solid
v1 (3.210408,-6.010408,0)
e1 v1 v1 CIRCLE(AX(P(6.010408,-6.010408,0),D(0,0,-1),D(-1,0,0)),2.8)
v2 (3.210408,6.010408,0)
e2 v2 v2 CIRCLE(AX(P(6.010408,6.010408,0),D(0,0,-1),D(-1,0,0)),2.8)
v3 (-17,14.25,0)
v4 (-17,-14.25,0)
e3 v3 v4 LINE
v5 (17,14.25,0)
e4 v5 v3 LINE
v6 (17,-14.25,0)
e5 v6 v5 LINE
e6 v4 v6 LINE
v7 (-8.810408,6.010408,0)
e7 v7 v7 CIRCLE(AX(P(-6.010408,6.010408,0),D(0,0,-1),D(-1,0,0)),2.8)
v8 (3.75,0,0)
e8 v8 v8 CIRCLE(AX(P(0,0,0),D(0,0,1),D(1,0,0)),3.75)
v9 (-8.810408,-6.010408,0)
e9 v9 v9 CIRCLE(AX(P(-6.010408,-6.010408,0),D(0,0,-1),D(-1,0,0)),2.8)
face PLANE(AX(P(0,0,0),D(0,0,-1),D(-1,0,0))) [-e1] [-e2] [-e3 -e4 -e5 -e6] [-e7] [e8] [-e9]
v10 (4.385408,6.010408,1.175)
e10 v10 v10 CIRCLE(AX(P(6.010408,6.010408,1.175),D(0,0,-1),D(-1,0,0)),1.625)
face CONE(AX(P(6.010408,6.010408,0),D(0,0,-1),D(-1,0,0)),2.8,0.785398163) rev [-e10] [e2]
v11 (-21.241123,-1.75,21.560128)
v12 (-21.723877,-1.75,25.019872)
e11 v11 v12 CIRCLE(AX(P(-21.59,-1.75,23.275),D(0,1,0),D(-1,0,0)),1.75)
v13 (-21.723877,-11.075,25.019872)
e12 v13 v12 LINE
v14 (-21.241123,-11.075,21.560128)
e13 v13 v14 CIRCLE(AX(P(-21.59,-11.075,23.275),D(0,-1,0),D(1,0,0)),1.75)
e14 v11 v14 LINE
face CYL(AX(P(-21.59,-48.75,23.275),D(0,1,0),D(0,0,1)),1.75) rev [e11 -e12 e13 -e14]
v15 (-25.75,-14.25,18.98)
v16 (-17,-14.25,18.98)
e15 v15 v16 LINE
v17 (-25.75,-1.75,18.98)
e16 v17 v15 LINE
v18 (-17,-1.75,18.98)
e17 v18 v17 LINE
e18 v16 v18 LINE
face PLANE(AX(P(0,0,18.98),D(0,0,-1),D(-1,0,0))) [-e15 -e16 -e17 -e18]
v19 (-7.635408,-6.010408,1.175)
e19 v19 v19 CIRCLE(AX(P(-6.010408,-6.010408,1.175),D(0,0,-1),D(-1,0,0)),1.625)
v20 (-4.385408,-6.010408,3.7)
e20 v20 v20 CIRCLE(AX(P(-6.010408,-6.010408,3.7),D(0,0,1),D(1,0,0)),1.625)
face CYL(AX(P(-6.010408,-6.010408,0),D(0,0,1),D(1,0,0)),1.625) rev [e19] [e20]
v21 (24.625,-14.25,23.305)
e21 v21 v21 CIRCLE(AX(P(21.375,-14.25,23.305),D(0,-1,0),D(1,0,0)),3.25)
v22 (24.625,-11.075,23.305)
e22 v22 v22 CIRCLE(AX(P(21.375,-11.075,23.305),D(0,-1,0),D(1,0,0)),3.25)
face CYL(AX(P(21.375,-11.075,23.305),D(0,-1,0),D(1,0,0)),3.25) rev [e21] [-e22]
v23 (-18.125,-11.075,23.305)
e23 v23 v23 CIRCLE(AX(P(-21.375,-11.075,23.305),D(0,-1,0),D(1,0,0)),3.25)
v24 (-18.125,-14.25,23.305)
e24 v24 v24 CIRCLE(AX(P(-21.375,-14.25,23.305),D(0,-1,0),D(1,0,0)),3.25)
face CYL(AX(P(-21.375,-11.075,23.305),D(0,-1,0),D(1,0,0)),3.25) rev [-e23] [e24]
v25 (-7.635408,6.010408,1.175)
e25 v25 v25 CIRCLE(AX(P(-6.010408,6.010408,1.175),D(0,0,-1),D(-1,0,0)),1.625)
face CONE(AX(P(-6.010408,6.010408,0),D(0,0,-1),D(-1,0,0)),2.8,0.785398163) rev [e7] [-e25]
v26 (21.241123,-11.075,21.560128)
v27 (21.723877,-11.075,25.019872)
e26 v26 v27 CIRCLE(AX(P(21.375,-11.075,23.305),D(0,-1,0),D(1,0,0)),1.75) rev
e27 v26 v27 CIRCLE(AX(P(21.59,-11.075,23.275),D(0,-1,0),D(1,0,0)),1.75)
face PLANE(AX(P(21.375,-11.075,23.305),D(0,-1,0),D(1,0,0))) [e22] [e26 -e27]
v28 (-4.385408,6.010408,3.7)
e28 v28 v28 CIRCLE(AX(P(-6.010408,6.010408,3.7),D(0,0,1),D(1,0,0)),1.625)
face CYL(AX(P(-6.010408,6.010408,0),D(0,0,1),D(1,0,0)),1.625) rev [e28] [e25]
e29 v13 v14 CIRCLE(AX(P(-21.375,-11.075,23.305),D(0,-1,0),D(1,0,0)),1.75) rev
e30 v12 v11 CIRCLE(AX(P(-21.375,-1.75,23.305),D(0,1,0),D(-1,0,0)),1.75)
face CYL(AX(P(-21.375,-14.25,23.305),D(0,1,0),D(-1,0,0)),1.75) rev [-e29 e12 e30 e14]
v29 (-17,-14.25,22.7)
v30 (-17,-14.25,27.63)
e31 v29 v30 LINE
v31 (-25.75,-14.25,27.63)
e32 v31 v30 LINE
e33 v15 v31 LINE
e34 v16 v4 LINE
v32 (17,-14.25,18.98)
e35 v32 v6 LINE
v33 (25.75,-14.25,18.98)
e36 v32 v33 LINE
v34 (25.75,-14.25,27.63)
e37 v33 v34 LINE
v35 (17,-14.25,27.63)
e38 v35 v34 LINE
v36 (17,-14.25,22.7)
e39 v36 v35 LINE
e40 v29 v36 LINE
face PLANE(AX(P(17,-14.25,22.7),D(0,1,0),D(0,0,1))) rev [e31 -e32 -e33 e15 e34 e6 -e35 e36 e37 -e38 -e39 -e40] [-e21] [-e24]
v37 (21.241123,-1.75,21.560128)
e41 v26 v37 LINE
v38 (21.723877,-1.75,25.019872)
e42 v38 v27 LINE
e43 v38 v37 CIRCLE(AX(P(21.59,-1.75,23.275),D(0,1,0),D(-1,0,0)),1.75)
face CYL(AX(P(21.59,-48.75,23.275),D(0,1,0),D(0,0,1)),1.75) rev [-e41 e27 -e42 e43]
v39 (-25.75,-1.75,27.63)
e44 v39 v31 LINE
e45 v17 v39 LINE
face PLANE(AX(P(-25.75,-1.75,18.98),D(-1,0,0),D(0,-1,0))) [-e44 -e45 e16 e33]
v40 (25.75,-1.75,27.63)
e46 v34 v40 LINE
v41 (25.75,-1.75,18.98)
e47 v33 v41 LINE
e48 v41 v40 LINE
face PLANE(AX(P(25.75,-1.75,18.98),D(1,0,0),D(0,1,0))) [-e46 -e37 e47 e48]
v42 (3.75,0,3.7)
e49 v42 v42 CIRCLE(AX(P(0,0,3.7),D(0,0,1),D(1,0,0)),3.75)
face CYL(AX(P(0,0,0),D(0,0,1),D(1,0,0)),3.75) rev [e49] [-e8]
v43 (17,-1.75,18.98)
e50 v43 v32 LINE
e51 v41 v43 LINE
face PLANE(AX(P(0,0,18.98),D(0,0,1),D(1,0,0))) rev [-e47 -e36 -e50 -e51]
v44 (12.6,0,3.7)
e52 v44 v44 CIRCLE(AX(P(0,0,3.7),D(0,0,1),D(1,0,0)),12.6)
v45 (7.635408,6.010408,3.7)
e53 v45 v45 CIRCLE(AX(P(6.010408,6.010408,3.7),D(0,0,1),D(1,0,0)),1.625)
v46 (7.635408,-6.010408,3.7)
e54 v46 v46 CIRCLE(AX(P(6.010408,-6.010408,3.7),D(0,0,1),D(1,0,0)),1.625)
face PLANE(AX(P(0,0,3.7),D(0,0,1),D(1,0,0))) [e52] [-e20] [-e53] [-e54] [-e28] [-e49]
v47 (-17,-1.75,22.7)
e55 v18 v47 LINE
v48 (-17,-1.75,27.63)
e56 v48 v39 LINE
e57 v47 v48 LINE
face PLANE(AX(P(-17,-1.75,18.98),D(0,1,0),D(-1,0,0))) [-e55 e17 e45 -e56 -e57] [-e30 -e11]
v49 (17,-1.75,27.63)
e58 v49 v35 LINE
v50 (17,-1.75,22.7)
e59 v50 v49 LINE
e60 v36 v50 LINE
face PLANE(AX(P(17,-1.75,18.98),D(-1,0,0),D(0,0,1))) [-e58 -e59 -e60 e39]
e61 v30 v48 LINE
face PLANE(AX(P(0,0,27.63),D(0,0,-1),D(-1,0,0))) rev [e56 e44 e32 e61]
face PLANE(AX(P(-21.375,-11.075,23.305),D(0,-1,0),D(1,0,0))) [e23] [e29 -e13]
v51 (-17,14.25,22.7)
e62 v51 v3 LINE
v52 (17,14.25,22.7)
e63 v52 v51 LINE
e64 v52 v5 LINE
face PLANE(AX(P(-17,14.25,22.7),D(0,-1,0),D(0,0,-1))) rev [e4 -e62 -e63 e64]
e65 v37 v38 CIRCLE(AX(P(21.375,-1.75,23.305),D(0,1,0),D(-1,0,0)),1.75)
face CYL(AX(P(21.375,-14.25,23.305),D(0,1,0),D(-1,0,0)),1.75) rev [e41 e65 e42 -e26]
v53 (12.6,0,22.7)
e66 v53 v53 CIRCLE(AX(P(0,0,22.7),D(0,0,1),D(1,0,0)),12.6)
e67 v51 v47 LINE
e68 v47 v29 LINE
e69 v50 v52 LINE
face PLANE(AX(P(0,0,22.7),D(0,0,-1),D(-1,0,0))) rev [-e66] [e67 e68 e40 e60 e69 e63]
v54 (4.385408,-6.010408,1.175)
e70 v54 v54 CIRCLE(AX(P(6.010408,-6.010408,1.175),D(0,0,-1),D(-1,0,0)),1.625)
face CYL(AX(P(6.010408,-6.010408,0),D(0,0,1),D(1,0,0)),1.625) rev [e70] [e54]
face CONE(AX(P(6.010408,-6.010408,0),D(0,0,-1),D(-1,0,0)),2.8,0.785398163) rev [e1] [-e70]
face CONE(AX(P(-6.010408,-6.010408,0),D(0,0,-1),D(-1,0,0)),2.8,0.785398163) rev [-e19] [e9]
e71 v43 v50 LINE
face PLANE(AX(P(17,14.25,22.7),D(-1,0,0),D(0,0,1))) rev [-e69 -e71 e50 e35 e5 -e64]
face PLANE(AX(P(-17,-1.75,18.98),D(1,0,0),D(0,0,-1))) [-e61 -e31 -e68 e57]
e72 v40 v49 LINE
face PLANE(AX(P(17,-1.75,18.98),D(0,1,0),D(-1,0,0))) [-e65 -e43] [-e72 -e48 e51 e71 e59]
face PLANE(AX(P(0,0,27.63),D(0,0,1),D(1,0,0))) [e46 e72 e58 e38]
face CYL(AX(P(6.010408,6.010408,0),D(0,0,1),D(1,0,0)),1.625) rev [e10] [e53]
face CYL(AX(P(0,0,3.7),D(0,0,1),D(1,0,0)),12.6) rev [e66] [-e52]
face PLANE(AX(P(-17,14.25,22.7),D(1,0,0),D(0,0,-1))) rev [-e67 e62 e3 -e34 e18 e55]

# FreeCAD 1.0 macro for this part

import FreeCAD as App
import Part
import Sketcher

V = App.Vector
Q = App.Units.Quantity

doc = App.newDocument("Part")
body = doc.addObject("PartDesign::Body", "Body")

sketch1 = body.newObject("Sketcher::SketchObject", "Sketch")
sketch1.AttachmentSupport = (doc.getObject("XY_Plane"), [""])
sketch1.MapMode = "FlatFace"
sketch1.addGeometry([
    Part.LineSegment(V(-17, 14, 0), V(-17, -14, 0)),
    Part.LineSegment(V(-17, -14, 0), V(17, -14, 0)),
    Part.LineSegment(V(17, -14, 0), V(17, 14, 0)),
    Part.LineSegment(V(17, 14, 0), V(-17, 14, 0)),
], False)
sketch1.addConstraint([
    Sketcher.Constraint("Coincident", 0, 2, 1, 1),
    Sketcher.Constraint("Coincident", 1, 2, 2, 1),
    Sketcher.Constraint("Coincident", 2, 2, 3, 1),
    Sketcher.Constraint("Coincident", 3, 2, 0, 1),
    Sketcher.Constraint("Vertical", 0),
    Sketcher.Constraint("Horizontal", 1),
    Sketcher.Constraint("Vertical", 2),
    Sketcher.Constraint("Horizontal", 3),
    Sketcher.Constraint("Symmetric", 0, 2, 2, 2, -1, 1),
    Sketcher.Constraint("DistanceX", 1, 1, 1, 2, Q("34 mm")),
    Sketcher.Constraint("DistanceY", 0, 2, 0, 1, Q("28.5 mm")),
])
pad1 = body.newObject("PartDesign::Pad", "Pad")
pad1.Profile = sketch1
pad1.Length = 22.7

sketch2 = body.newObject("Sketcher::SketchObject", "Sketch001")
sketch2.AttachmentSupport = (doc.getObject("XY_Plane"), [""])
sketch2.MapMode = "FlatFace"
sketch2.AttachmentOffset = App.Placement(V(0, 0, 22.7), App.Rotation())
sketch2.addGeometry(Part.Circle(V(0, 0, 0), V(0, 0, 1), 13), False)
sketch2.addConstraint([
    Sketcher.Constraint("Coincident", 0, 3, -1, 1),
    Sketcher.Constraint("Diameter", 0, Q("25.2 mm")),
])
pocket1 = body.newObject("PartDesign::Pocket", "Pocket")
pocket1.Profile = sketch2
pocket1.Length = 19

sketch3 = body.newObject("Sketcher::SketchObject", "Sketch002")
sketch3.AttachmentSupport = (doc.getObject("XY_Plane"), [""])
sketch3.MapMode = "FlatFace"
sketch3.AttachmentOffset = App.Placement(V(0, 0, 3.7), App.Rotation())
sketch3.addGeometry([
    Part.Circle(V(6, 6, 0), V(0, 0, 1), 1.6),
    Part.Circle(V(-6, 6, 0), V(0, 0, 1), 1.6),
    Part.Circle(V(6, -6, 0), V(0, 0, 1), 1.6),
    Part.Circle(V(-6, -6, 0), V(0, 0, 1), 1.6),
    Part.Circle(V(0, 0, 0), V(0, 0, 1), 3.8),
], False)
sketch3.addConstraint([
    Sketcher.Constraint("Coincident", 4, 3, -1, 1),
    Sketcher.Constraint("Equal", 0, 1),
    Sketcher.Constraint("Equal", 1, 2),
    Sketcher.Constraint("Equal", 2, 3),
    Sketcher.Constraint("Symmetric", 1, 3, 2, 3, -1, 1),
    Sketcher.Constraint("Symmetric", 0, 3, 3, 3, -1, 1),
    Sketcher.Constraint("Symmetric", 0, 3, 1, 3, -2),
    Sketcher.Constraint("Diameter", 4, Q("7.5 mm")),
    Sketcher.Constraint("Diameter", 0, Q("3.25 mm")),
    Sketcher.Constraint("DistanceX", -1, 1, 0, 3, Q("6.010408 mm")),
    Sketcher.Constraint("DistanceY", -1, 1, 0, 3, Q("6.010408 mm")),
])
pocket2 = body.newObject("PartDesign::Pocket", "Pocket001")
pocket2.Profile = sketch3
pocket2.Type = "ThroughAll"

sketch4 = body.newObject("Sketcher::SketchObject", "Sketch003")
sketch4.AttachmentSupport = (doc.getObject("XY_Plane"), [""])
sketch4.MapMode = "FlatFace"
sketch4.AttachmentOffset = App.Placement(V(0, 0, 22.7), App.Rotation())
sketch4.addGeometry([
    Part.LineSegment(V(-26, -2, 0), V(-26, -14, 0)),
    Part.LineSegment(V(-26, -14, 0), V(-17, -14, 0)),
    Part.LineSegment(V(-17, -14, 0), V(-17, -2, 0)),
    Part.LineSegment(V(-17, -2, 0), V(-26, -2, 0)),
    Part.LineSegment(V(17, -2, 0), V(17, -14, 0)),
    Part.LineSegment(V(17, -14, 0), V(26, -14, 0)),
    Part.LineSegment(V(26, -14, 0), V(26, -2, 0)),
    Part.LineSegment(V(26, -2, 0), V(17, -2, 0)),
], False)
sketch4.addConstraint([
    Sketcher.Constraint("Coincident", 0, 2, 1, 1),
    Sketcher.Constraint("Coincident", 1, 2, 2, 1),
    Sketcher.Constraint("Coincident", 2, 2, 3, 1),
    Sketcher.Constraint("Coincident", 3, 2, 0, 1),
    Sketcher.Constraint("Coincident", 4, 2, 5, 1),
    Sketcher.Constraint("Coincident", 5, 2, 6, 1),
    Sketcher.Constraint("Coincident", 6, 2, 7, 1),
    Sketcher.Constraint("Coincident", 7, 2, 4, 1),
    Sketcher.Constraint("Vertical", 0),
    Sketcher.Constraint("Horizontal", 1),
    Sketcher.Constraint("Vertical", 2),
    Sketcher.Constraint("Horizontal", 3),
    Sketcher.Constraint("Vertical", 4),
    Sketcher.Constraint("Horizontal", 5),
    Sketcher.Constraint("Vertical", 6),
    Sketcher.Constraint("Horizontal", 7),
    Sketcher.Constraint("Symmetric", 1, 2, 4, 2, -2),
    Sketcher.Constraint("Symmetric", 3, 2, 6, 2, -2),
    Sketcher.Constraint("DistanceY", 0, 2, 0, 1, Q("12.5 mm")),
    Sketcher.Constraint("DistanceX", 1, 2, -1, 1, Q("17 mm")),
    Sketcher.Constraint("DistanceX", 1, 1, 1, 2, Q("8.75 mm")),
    Sketcher.Constraint("DistanceY", 0, 2, -1, 1, Q("14.25 mm")),
])
pad2 = body.newObject("PartDesign::Pad", "Pad001")
pad2.Profile = sketch4
pad2.Type = "TwoLengths"
pad2.Length = 4.93
pad2.Length2 = 3.72

sketch5 = body.newObject("Sketcher::SketchObject", "Sketch004")
sketch5.AttachmentSupport = (doc.getObject("XZ_Plane"), [""])
sketch5.MapMode = "FlatFace"
sketch5.AttachmentOffset = App.Placement(V(0, 0, 1.75), App.Rotation())
sketch5.addGeometry([
    Part.Circle(V(21.4, 23.3, 0), V(0, 0, 1), 1.8),
    Part.Circle(V(-21.4, 23.3, 0), V(0, 0, 1), 1.8),
], False)
sketch5.addConstraint([
    Sketcher.Constraint("Equal", 0, 1),
    Sketcher.Constraint("Symmetric", 0, 3, 1, 3, -2),
    Sketcher.Constraint("Diameter", 0, Q("3.5 mm")),
    Sketcher.Constraint("DistanceX", 1, 3, 0, 3, Q("42.75 mm")),
    Sketcher.Constraint("DistanceY", -1, 1, 0, 3, Q("23.305 mm")),
])
pocket3 = body.newObject("PartDesign::Pocket", "Pocket002")
pocket3.Profile = sketch5
pocket3.Type = "ThroughAll"
pocket3.Reversed = True

sketch6 = body.newObject("Sketcher::SketchObject", "Sketch005")
sketch6.AttachmentSupport = (doc.getObject("XZ_Plane"), [""])
sketch6.MapMode = "FlatFace"
sketch6.AttachmentOffset = App.Placement(V(0, 0, 14.25), App.Rotation())
sketch6.addGeometry([
    Part.Circle(V(-21.4, 23.3, 0), V(0, 0, 1), 3.2),
    Part.Circle(V(21.4, 23.3, 0), V(0, 0, 1), 3.2),
], False)
sketch6.addConstraint([
    Sketcher.Constraint("Equal", 0, 1),
    Sketcher.Constraint("Symmetric", 0, 3, 1, 3, -2),
    Sketcher.Constraint("Diameter", 0, Q("6.5 mm")),
    Sketcher.Constraint("DistanceX", 0, 3, 1, 3, Q("42.75 mm")),
    Sketcher.Constraint("DistanceY", -1, 1, 0, 3, Q("23.305 mm")),
])
pocket4 = body.newObject("PartDesign::Pocket", "Pocket003")
pocket4.Profile = sketch6
pocket4.Length = 3.175

sketch7 = body.newObject("Sketcher::SketchObject", "Sketch006")
sketch7.AttachmentSupport = (doc.getObject("YZ_Plane"), [""])
sketch7.MapMode = "FlatFace"
sketch7.AttachmentOffset = App.Placement(V(0, 0, -6.010408), App.Rotation())
sketch7.addGeometry([
    Part.LineSegment(V(6, 0, 0), V(8.8, 0, 0)),
    Part.LineSegment(V(8.8, 0, 0), V(6, 2.8, 0)),
    Part.LineSegment(V(6, 2.8, 0), V(6, 0, 0)),
], False)
sketch7.addGeometry(Part.LineSegment(V(6, 0, 0), V(6, 2.8, 0)), True)
sketch7.addConstraint([
    Sketcher.Constraint("Coincident", 0, 2, 1, 1),
    Sketcher.Constraint("Coincident", 1, 2, 2, 1),
    Sketcher.Constraint("Coincident", 2, 2, 0, 1),
    Sketcher.Constraint("Horizontal", 0),
    Sketcher.Constraint("Vertical", 2),
    Sketcher.Constraint("Vertical", 3),
    Sketcher.Constraint("Coincident", 3, 1, 2, 2),
    Sketcher.Constraint("PointOnObject", 0, 2, -1),
    Sketcher.Constraint("Equal", 0, 2),
    Sketcher.Constraint("Equal", 2, 3),
    Sketcher.Constraint("DistanceX", 0, 1, 0, 2, Q("2.8 mm")),
    Sketcher.Constraint("DistanceX", -1, 1, 0, 2, Q("8.810408 mm")),
])
groove = body.newObject("PartDesign::Groove", "Groove")
groove.Profile = sketch7
groove.ReferenceAxis = (sketch7, ["Axis0"])
groove.Angle = 360

sketch8 = body.newObject("Sketcher::SketchObject", "Sketch007")
sketch8.AttachmentSupport = (doc.getObject("YZ_Plane"), [""])
sketch8.MapMode = "FlatFace"
sketch8.AttachmentOffset = App.Placement(V(0, 0, -6.010408), App.Rotation())
sketch8.addGeometry([
    Part.LineSegment(V(-6, 0, 0), V(-3.2, 0, 0)),
    Part.LineSegment(V(-3.2, 0, 0), V(-6, 2.8, 0)),
    Part.LineSegment(V(-6, 2.8, 0), V(-6, 0, 0)),
], False)
sketch8.addGeometry(Part.LineSegment(V(-6, 0, 0), V(-6, 2.8, 0)), True)
sketch8.addConstraint([
    Sketcher.Constraint("Coincident", 0, 2, 1, 1),
    Sketcher.Constraint("Coincident", 1, 2, 2, 1),
    Sketcher.Constraint("Coincident", 2, 2, 0, 1),
    Sketcher.Constraint("Horizontal", 0),
    Sketcher.Constraint("Vertical", 2),
    Sketcher.Constraint("Vertical", 3),
    Sketcher.Constraint("Coincident", 3, 1, 2, 2),
    Sketcher.Constraint("PointOnObject", 0, 2, -1),
    Sketcher.Constraint("Equal", 0, 2),
    Sketcher.Constraint("Equal", 2, 3),
    Sketcher.Constraint("DistanceX", 0, 1, 0, 2, Q("2.8 mm")),
    Sketcher.Constraint("DistanceX", 0, 2, -1, 1, Q("3.210408 mm")),
])
groove2 = body.newObject("PartDesign::Groove", "Groove001")
groove2.Profile = sketch8
groove2.ReferenceAxis = (sketch8, ["Axis0"])
groove2.Angle = 360

sketch9 = body.newObject("Sketcher::SketchObject", "Sketch008")
sketch9.AttachmentSupport = (doc.getObject("YZ_Plane"), [""])
sketch9.MapMode = "FlatFace"
sketch9.AttachmentOffset = App.Placement(V(0, 0, 6.010408), App.Rotation())
sketch9.addGeometry([
    Part.LineSegment(V(-6, 0, 0), V(-3.2, 0, 0)),
    Part.LineSegment(V(-3.2, 0, 0), V(-6, 2.8, 0)),
    Part.LineSegment(V(-6, 2.8, 0), V(-6, 0, 0)),
], False)
sketch9.addGeometry(Part.LineSegment(V(-6, 0, 0), V(-6, 2.8, 0)), True)
sketch9.addConstraint([
    Sketcher.Constraint("Coincident", 0, 2, 1, 1),
    Sketcher.Constraint("Coincident", 1, 2, 2, 1),
    Sketcher.Constraint("Coincident", 2, 2, 0, 1),
    Sketcher.Constraint("Horizontal", 0),
    Sketcher.Constraint("Vertical", 2),
    Sketcher.Constraint("Vertical", 3),
    Sketcher.Constraint("Coincident", 3, 1, 2, 2),
    Sketcher.Constraint("PointOnObject", 0, 2, -1),
    Sketcher.Constraint("Equal", 0, 2),
    Sketcher.Constraint("Equal", 2, 3),
    Sketcher.Constraint("DistanceX", 0, 1, 0, 2, Q("2.8 mm")),
    Sketcher.Constraint("DistanceX", 0, 2, -1, 1, Q("3.210408 mm")),
])
groove3 = body.newObject("PartDesign::Groove", "Groove002")
groove3.Profile = sketch9
groove3.ReferenceAxis = (sketch9, ["Axis0"])
groove3.Angle = 360

sketch10 = body.newObject("Sketcher::SketchObject", "Sketch009")
sketch10.AttachmentSupport = (doc.getObject("YZ_Plane"), [""])
sketch10.MapMode = "FlatFace"
sketch10.AttachmentOffset = App.Placement(V(0, 0, 6.010408), App.Rotation())
sketch10.addGeometry([
    Part.LineSegment(V(6, 0, 0), V(8.8, 0, 0)),
    Part.LineSegment(V(8.8, 0, 0), V(6, 2.8, 0)),
    Part.LineSegment(V(6, 2.8, 0), V(6, 0, 0)),
], False)
sketch10.addGeometry(Part.LineSegment(V(6, 0, 0), V(6, 2.8, 0)), True)
sketch10.addConstraint([
    Sketcher.Constraint("Coincident", 0, 2, 1, 1),
    Sketcher.Constraint("Coincident", 1, 2, 2, 1),
    Sketcher.Constraint("Coincident", 2, 2, 0, 1),
    Sketcher.Constraint("Horizontal", 0),
    Sketcher.Constraint("Vertical", 2),
    Sketcher.Constraint("Vertical", 3),
    Sketcher.Constraint("Coincident", 3, 1, 2, 2),
    Sketcher.Constraint("PointOnObject", 0, 2, -1),
    Sketcher.Constraint("Equal", 0, 2),
    Sketcher.Constraint("Equal", 2, 3),
    Sketcher.Constraint("DistanceX", 0, 1, 0, 2, Q("2.8 mm")),
    Sketcher.Constraint("DistanceX", -1, 1, 0, 2, Q("8.810408 mm")),
])
groove4 = body.newObject("PartDesign::Groove", "Groove003")
groove4.Profile = sketch10
groove4.ReferenceAxis = (sketch10, ["Axis0"])
groove4.Angle = 360

sketch11 = body.newObject("Sketcher::SketchObject", "Sketch010")
sketch11.AttachmentSupport = (doc.getObject("XZ_Plane"), [""])
sketch11.MapMode = "FlatFace"
sketch11.AttachmentOffset = App.Placement(V(0, 0, -1.25), App.Rotation())
sketch11.addGeometry([
    Part.Circle(V(21.6, 23.3, 0), V(0, 0, 1), 1.8),
    Part.Circle(V(-21.6, 23.3, 0), V(0, 0, 1), 1.8),
], False)
sketch11.addConstraint([
    Sketcher.Constraint("Equal", 0, 1),
    Sketcher.Constraint("Symmetric", 0, 3, 1, 3, -2),
    Sketcher.Constraint("Diameter", 0, Q("3.5 mm")),
    Sketcher.Constraint("DistanceX", -1, 1, 0, 3, Q("21.59 mm")),
    Sketcher.Constraint("DistanceY", -1, 1, 0, 3, Q("23.275 mm")),
])
pocket5 = body.newObject("PartDesign::Pocket", "Pocket004")
pocket5.Profile = sketch11
pocket5.Length = 50
pocket5.Reversed = True

doc.recompute()
